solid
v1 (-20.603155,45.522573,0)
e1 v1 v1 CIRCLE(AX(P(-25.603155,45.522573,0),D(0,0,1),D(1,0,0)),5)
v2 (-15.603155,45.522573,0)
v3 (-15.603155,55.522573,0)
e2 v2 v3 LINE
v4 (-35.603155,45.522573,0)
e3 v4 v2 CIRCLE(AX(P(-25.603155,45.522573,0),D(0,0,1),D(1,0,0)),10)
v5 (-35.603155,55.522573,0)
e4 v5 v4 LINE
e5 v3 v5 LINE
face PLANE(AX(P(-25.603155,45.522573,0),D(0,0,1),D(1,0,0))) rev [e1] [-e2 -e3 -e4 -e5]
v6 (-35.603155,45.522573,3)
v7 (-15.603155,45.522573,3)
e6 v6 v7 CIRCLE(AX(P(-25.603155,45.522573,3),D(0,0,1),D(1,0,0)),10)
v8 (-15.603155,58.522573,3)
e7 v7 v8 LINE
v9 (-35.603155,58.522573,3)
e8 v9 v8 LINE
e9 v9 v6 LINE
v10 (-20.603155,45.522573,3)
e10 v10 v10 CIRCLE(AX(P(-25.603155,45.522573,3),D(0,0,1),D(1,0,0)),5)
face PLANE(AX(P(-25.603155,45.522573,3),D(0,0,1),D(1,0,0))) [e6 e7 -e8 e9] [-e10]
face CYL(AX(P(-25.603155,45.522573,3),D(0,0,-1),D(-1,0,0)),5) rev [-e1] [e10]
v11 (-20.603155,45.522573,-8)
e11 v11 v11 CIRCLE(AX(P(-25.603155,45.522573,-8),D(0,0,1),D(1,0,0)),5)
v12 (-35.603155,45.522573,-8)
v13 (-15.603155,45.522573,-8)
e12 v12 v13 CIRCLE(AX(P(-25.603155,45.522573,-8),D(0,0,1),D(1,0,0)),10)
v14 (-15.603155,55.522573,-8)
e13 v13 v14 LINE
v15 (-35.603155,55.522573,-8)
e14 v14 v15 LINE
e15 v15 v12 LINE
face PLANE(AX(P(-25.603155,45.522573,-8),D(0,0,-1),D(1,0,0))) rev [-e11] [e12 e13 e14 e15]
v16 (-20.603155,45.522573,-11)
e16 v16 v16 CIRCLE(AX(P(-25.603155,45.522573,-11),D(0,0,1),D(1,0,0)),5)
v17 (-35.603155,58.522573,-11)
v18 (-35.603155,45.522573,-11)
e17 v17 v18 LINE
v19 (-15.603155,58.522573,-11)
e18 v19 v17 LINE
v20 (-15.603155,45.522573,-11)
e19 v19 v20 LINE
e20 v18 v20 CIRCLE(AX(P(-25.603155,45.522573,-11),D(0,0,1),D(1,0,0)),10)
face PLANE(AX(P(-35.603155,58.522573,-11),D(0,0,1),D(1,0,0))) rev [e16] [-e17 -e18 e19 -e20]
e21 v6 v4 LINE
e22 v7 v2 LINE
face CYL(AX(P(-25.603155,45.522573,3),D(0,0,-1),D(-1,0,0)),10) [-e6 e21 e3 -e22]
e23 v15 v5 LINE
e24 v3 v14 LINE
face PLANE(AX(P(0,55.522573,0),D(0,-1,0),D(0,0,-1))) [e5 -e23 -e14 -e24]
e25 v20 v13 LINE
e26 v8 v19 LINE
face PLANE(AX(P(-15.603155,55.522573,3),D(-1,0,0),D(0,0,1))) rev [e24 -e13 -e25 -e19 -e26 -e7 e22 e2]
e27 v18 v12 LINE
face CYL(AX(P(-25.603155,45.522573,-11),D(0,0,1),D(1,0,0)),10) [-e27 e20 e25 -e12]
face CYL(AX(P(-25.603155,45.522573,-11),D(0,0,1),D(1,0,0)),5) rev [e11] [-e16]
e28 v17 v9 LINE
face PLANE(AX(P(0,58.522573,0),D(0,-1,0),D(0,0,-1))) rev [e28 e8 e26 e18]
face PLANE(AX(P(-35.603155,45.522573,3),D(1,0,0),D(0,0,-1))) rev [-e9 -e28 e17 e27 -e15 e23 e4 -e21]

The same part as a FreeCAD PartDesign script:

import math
import FreeCAD as App
import Part
import Sketcher
Q = App.Units.Quantity

doc = App.newDocument("Part")
body = doc.addObject("PartDesign::Body", "Body")

sketch1 = body.newObject("Sketcher::SketchObject", "Sketch")
sketch1.AttachmentSupport = (doc.getObject("XY_Plane"), [""])
sketch1.MapMode = "FlatFace"
sketch1.addGeometry([
    Part.LineSegment(App.Vector(-16, 56, 0), App.Vector(-36, 56, 0)),
    Part.LineSegment(App.Vector(-36, 56, 0), App.Vector(-36, 46, 0)),
    Part.ArcOfCircle(Part.Circle(App.Vector(-26, 46, 0), App.Vector(0, 0, 1), 10), math.radians(180), math.radians(360)),
    Part.LineSegment(App.Vector(-16, 46, 0), App.Vector(-16, 56, 0)),
    Part.Circle(App.Vector(-26, 46, 0), App.Vector(0, 0, 1), 5),
], False)
sketch1.addConstraint([
    Sketcher.Constraint("Coincident", 0, 2, 1, 1),
    Sketcher.Constraint("Tangent", 1, 2, 2, 1),
    Sketcher.Constraint("Tangent", 2, 2, 3, 1),
    Sketcher.Constraint("Coincident", 3, 2, 0, 1),
    Sketcher.Constraint("Horizontal", 0),
    Sketcher.Constraint("Vertical", 1),
    Sketcher.Constraint("Vertical", 3),
    Sketcher.Constraint("Coincident", 4, 3, 2, 3),
    Sketcher.Constraint("Diameter", 4, Q("10 mm")),
    Sketcher.Constraint("Radius", 2, Q("10 mm")),
    Sketcher.Constraint("DistanceY", 1, 2, 1, 1, Q("10 mm")),
    Sketcher.Constraint("DistanceX", 2, 3, -1, 1, Q("25.603155 mm")),
    Sketcher.Constraint("DistanceY", -1, 1, 2, 3, Q("45.522573 mm")),
])
pad1 = body.newObject("PartDesign::Pad", "Pad")
pad1.Profile = sketch1
pad1.Length = 3

sketch2 = body.newObject("Sketcher::SketchObject", "Sketch001")
sketch2.AttachmentSupport = (doc.getObject("XZ_Plane"), [""])
sketch2.MapMode = "FlatFace"
sketch2.AttachmentOffset = App.Placement(App.Vector(0, 0, -55.522573), App.Rotation())
sketch2.addGeometry([
    Part.LineSegment(App.Vector(-36, -11, 0), App.Vector(-36, 3, 0)),
    Part.LineSegment(App.Vector(-36, 3, 0), App.Vector(-16, 3, 0)),
    Part.LineSegment(App.Vector(-16, 3, 0), App.Vector(-16, -11, 0)),
    Part.LineSegment(App.Vector(-16, -11, 0), App.Vector(-36, -11, 0)),
], False)
sketch2.addConstraint([
    Sketcher.Constraint("Coincident", 0, 2, 1, 1),
    Sketcher.Constraint("Coincident", 1, 2, 2, 1),
    Sketcher.Constraint("Coincident", 2, 2, 3, 1),
    Sketcher.Constraint("Coincident", 3, 2, 0, 1),
    Sketcher.Constraint("Vertical", 0),
    Sketcher.Constraint("Horizontal", 1),
    Sketcher.Constraint("Vertical", 2),
    Sketcher.Constraint("Horizontal", 3),
    Sketcher.Constraint("DistanceX", 1, 1, 1, 2, Q("20 mm")),
    Sketcher.Constraint("DistanceY", 0, 1, 0, 2, Q("14 mm")),
    Sketcher.Constraint("DistanceY", -1, 1, 0, 2, Q("3 mm")),
    Sketcher.Constraint("DistanceX", 0, 2, -1, 1, Q("35.603155 mm")),
])
pad2 = body.newObject("PartDesign::Pad", "Pad001")
pad2.Profile = sketch2
pad2.Length = 3
pad2.Reversed = True
doc.recompute()

datumplane = body.newObject("PartDesign::Plane", "DatumPlane")
datumplane.AttachmentSupport = (doc.getObject("XY_Plane"), [""])
datumplane.MapMode = "FlatFace"
datumplane.AttachmentOffset = App.Placement(App.Vector(0, 0, -4), App.Rotation())
mirrored = body.newObject("PartDesign::Mirrored", "Mirrored")
mirrored.Originals = [pad1]
mirrored.MirrorPlane = (datumplane, [""])
body.Tip = mirrored

doc.recompute()
